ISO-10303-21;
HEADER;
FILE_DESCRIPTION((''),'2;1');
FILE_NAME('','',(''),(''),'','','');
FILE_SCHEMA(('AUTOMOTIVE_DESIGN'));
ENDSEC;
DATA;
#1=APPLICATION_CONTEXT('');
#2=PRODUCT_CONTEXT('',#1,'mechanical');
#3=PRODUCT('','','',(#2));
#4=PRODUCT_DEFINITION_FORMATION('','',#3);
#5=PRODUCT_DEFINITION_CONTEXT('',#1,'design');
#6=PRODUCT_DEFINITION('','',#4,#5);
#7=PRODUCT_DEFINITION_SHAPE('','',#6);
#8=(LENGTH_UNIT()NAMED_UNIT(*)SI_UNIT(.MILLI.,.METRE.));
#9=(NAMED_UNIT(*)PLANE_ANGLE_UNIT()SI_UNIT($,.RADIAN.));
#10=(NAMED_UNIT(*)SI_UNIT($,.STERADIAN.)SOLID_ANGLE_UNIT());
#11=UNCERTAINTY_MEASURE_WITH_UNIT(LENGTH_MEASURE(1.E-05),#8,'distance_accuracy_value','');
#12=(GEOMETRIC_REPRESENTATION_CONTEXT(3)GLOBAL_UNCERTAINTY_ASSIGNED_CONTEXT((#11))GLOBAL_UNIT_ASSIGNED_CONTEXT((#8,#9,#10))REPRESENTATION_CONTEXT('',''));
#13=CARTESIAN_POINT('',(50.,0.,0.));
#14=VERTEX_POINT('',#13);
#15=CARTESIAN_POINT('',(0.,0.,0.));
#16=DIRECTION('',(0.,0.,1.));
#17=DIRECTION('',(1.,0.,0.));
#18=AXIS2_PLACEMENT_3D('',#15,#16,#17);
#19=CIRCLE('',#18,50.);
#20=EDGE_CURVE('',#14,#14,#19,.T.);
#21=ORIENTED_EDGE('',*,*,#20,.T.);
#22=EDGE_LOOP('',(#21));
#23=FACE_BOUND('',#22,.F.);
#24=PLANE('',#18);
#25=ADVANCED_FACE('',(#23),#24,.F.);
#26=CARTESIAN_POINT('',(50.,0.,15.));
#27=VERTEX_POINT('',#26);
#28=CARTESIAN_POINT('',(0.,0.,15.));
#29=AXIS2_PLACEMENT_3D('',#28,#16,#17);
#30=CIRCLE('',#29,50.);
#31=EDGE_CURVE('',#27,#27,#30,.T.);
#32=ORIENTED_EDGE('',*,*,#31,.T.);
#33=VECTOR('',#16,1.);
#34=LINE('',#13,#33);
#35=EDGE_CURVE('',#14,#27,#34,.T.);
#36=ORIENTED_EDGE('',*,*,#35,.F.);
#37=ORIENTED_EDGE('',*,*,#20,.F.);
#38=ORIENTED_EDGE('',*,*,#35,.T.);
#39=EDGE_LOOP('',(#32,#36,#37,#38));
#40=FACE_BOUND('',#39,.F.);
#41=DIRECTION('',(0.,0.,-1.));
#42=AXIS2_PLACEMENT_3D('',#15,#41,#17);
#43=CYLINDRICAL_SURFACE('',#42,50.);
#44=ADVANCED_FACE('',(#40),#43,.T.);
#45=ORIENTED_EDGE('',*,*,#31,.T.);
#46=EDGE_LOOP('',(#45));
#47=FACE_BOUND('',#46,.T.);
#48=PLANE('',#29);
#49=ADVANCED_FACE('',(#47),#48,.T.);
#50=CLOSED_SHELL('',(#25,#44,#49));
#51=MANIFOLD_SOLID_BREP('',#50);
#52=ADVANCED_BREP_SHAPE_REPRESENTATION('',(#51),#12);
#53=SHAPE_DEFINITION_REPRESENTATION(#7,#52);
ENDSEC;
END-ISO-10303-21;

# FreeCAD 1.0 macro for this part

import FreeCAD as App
import Part
import Sketcher
from FreeCAD import Vector

doc = App.newDocument("Part")
params = doc.addObject("Spreadsheet::Sheet", "Params")
for row, (alias, value) in enumerate([
    ("sketch1_diameter", "100 mm"),
    ("pad1_length", "15 mm"),
], start=1):
    params.set(f"A{row}", alias)
    params.set(f"B{row}", "=" + value)
    params.setAlias(f"B{row}", alias)

body = doc.addObject("PartDesign::Body", "Body")

# Sketch on XY plane
sketch1 = doc.addObject("Sketcher::SketchObject", "Sketch")
body.addObject(sketch1)
sketch1.AttachmentSupport = (doc.XY_Plane, [""])
sketch1.MapMode = "FlatFace"
sketch1.addGeometry(Part.Circle(Vector(0, 0, 0), Vector(0, 0, 1), 50), False)
sketch1.addConstraint([
    Sketcher.Constraint("Coincident", 0, 3, -1, 1),
    Sketcher.Constraint("Diameter", 0, 100.0),
])
sketch1.setExpression("Constraints[1]", "Params.sketch1_diameter")
pad1 = doc.addObject("PartDesign::Pad", "Pad")
body.addObject(pad1)
pad1.Profile = sketch1
pad1.setExpression("Length", "Params.pad1_length")

doc.recompute()
